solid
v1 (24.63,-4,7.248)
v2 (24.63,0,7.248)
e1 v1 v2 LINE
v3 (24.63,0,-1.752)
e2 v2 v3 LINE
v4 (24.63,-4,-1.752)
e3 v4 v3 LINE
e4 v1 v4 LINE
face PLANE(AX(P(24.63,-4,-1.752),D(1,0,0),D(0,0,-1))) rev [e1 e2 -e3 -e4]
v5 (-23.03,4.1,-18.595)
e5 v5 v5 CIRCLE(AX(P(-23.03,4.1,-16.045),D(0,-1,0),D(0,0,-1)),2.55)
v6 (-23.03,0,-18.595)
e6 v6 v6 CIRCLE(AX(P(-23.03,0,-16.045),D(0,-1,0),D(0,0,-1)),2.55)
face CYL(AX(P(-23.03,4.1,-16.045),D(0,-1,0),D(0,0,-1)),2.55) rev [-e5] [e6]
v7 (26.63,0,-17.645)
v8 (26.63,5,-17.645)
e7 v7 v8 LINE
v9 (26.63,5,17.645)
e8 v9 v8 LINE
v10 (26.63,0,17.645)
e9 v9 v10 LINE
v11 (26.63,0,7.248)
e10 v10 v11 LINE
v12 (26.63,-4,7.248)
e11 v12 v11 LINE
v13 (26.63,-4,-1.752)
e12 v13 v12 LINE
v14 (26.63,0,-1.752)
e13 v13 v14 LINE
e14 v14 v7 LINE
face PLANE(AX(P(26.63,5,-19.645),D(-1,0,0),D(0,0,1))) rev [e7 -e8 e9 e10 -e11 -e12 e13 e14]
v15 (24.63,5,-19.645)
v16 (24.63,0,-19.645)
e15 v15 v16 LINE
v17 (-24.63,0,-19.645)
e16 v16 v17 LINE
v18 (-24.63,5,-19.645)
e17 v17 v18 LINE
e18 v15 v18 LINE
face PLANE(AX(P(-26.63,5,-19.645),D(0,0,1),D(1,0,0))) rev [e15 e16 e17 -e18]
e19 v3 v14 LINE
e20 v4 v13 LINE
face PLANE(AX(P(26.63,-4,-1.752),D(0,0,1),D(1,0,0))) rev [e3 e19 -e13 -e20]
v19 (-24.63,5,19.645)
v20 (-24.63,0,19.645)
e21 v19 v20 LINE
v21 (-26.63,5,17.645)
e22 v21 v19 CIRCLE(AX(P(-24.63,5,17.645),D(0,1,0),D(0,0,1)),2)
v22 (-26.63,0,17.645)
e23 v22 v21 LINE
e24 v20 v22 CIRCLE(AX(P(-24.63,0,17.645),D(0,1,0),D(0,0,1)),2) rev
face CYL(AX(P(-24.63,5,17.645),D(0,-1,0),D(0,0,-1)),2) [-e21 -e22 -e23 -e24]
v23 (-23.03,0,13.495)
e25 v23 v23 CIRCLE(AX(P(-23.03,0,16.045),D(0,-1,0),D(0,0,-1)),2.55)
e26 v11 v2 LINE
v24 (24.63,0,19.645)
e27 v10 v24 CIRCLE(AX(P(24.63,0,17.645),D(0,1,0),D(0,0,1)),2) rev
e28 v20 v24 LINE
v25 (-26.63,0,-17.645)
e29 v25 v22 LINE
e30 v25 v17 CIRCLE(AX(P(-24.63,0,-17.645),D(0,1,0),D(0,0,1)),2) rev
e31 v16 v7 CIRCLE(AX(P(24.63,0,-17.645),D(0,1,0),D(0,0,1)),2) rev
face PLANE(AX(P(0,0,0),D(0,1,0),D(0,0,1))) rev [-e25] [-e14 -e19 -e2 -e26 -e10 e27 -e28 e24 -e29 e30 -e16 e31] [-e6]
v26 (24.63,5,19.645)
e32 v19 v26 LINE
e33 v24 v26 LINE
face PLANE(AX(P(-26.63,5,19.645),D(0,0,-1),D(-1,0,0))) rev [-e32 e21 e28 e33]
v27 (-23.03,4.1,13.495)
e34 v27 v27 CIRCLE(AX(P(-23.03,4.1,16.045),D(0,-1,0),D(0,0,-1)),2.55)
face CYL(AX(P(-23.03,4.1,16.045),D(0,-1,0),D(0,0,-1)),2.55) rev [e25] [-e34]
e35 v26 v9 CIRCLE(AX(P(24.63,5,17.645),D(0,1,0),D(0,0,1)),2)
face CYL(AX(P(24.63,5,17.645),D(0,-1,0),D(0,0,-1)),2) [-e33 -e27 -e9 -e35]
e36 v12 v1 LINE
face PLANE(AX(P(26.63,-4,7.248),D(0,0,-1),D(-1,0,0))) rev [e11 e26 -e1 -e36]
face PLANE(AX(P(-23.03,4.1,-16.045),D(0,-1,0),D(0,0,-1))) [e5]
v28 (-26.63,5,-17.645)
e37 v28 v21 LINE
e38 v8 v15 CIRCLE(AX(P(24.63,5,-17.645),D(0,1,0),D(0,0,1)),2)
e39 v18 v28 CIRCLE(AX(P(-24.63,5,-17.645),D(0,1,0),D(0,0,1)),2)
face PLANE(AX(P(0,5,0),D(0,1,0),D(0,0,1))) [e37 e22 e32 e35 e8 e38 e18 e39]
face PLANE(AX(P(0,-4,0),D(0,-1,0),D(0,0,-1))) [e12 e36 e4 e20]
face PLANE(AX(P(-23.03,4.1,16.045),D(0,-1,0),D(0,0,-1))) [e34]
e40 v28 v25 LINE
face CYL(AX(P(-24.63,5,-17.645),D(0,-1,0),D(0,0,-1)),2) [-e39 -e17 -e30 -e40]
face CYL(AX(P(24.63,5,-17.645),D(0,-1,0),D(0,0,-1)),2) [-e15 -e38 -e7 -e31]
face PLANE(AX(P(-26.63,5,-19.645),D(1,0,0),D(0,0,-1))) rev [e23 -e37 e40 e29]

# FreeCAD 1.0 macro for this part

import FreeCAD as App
import Part
import Sketcher

V = App.Vector


def edges_at(feature, points):
    """Names of the edges that pass closest to the given points."""
    edges = feature.Shape.Edges
    near = lambda p: min(range(len(edges)), key=lambda i: edges[i].distToShape(Part.Vertex(*p))[0])
    return sorted({f"Edge{near(p) + 1}" for p in points})

doc = App.newDocument("Part")
body = doc.addObject("PartDesign::Body", "Body")

sketch1 = doc.addObject("Sketcher::SketchObject", "Sketch")
body.addObject(sketch1)
sketch1.AttachmentSupport = (doc.XZ_Plane, [""])
sketch1.MapMode = "FlatFace"
sketch1.addGeometry(Part.LineSegment(V(-27, -20, 0), V(-27, 20, 0)), False)
sketch1.addGeometry(Part.LineSegment(V(-27, 20, 0), V(27, 20, 0)), False)
sketch1.addGeometry(Part.LineSegment(V(27, 20, 0), V(27, -20, 0)), False)
sketch1.addGeometry(Part.LineSegment(V(27, -20, 0), V(-27, -20, 0)), False)
sketch1.addConstraint(Sketcher.Constraint("Coincident", 0, 2, 1, 1))
sketch1.addConstraint(Sketcher.Constraint("Coincident", 1, 2, 2, 1))
sketch1.addConstraint(Sketcher.Constraint("Coincident", 2, 2, 3, 1))
sketch1.addConstraint(Sketcher.Constraint("Coincident", 3, 2, 0, 1))
sketch1.addConstraint(Sketcher.Constraint("Vertical", 0))
sketch1.addConstraint(Sketcher.Constraint("Horizontal", 1))
sketch1.addConstraint(Sketcher.Constraint("Vertical", 2))
sketch1.addConstraint(Sketcher.Constraint("Horizontal", 3))
sketch1.addConstraint(Sketcher.Constraint("Symmetric", 0, 2, 2, 2, -1, 1))
sketch1.addConstraint(Sketcher.Constraint("DistanceX", 1, 1, 1, 2, 53.26))
sketch1.addConstraint(Sketcher.Constraint("DistanceY", 0, 1, 0, 2, 39.29))
pad1 = doc.addObject("PartDesign::Pad", "Pad")
body.addObject(pad1)
pad1.Profile = sketch1
pad1.Length = 5
pad1.Reversed = True
doc.recompute()

fillet = doc.addObject("PartDesign::Fillet", "Fillet")
body.addObject(fillet)
fillet.Base = (pad1, edges_at(pad1, [
    (26.63, 2.5, 19.645),
    (-26.63, 2.5, 19.645),
    (-26.63, 2.5, -19.645),
    (26.63, 2.5, -19.645),
]))
fillet.Radius = 2

sketch2 = doc.addObject("Sketcher::SketchObject", "Sketch001")
body.addObject(sketch2)
sketch2.AttachmentSupport = (doc.XZ_Plane, [""])
sketch2.MapMode = "FlatFace"
sketch2.addGeometry(Part.Circle(V(-23, 16, 0), V(0, 0, 1), 2.5), False)
sketch2.addGeometry(Part.Circle(V(-23, -16, 0), V(0, 0, 1), 2.5), False)
sketch2.addConstraint(Sketcher.Constraint("Equal", 0, 1))
sketch2.addConstraint(Sketcher.Constraint("Symmetric", 0, 3, 1, 3, -1))
sketch2.addConstraint(Sketcher.Constraint("Diameter", 0, 5.1))
sketch2.addConstraint(Sketcher.Constraint("DistanceX", 0, 3, -1, 1, 23.03))
sketch2.addConstraint(Sketcher.Constraint("DistanceY", 1, 3, 0, 3, 32.09))
pocket1 = doc.addObject("PartDesign::Pocket", "Pocket")
body.addObject(pocket1)
pocket1.Profile = sketch2
pocket1.Length = 4.1

sketch3 = doc.addObject("Sketcher::SketchObject", "Sketch002")
body.addObject(sketch3)
sketch3.AttachmentSupport = (doc.XZ_Plane, [""])
sketch3.MapMode = "FlatFace"
sketch3.addGeometry(Part.LineSegment(V(26.6, -1.8, 0), V(26.6, 7.2, 0)), False)
sketch3.addGeometry(Part.LineSegment(V(26.6, 7.2, 0), V(24.6, 7.2, 0)), False)
sketch3.addGeometry(Part.LineSegment(V(24.6, 7.2, 0), V(24.6, -1.8, 0)), False)
sketch3.addGeometry(Part.LineSegment(V(24.6, -1.8, 0), V(26.6, -1.8, 0)), False)
sketch3.addConstraint(Sketcher.Constraint("Coincident", 0, 2, 1, 1))
sketch3.addConstraint(Sketcher.Constraint("Coincident", 1, 2, 2, 1))
sketch3.addConstraint(Sketcher.Constraint("Coincident", 2, 2, 3, 1))
sketch3.addConstraint(Sketcher.Constraint("Coincident", 3, 2, 0, 1))
sketch3.addConstraint(Sketcher.Constraint("Vertical", 0))
sketch3.addConstraint(Sketcher.Constraint("Horizontal", 1))
sketch3.addConstraint(Sketcher.Constraint("Vertical", 2))
sketch3.addConstraint(Sketcher.Constraint("Horizontal", 3))
sketch3.addConstraint(Sketcher.Constraint("DistanceX", 1, 2, 1, 1, 2.0))
sketch3.addConstraint(Sketcher.Constraint("DistanceY", 0, 1, 0, 2, 9.0))
sketch3.addConstraint(Sketcher.Constraint("DistanceX", -1, 1, 0, 2, 26.63))
sketch3.addConstraint(Sketcher.Constraint("DistanceY", -1, 1, 0, 2, 7.248))
pad2 = doc.addObject("PartDesign::Pad", "Pad001")
body.addObject(pad2)
pad2.Profile = sketch3
pad2.Length = 4

doc.recompute()
